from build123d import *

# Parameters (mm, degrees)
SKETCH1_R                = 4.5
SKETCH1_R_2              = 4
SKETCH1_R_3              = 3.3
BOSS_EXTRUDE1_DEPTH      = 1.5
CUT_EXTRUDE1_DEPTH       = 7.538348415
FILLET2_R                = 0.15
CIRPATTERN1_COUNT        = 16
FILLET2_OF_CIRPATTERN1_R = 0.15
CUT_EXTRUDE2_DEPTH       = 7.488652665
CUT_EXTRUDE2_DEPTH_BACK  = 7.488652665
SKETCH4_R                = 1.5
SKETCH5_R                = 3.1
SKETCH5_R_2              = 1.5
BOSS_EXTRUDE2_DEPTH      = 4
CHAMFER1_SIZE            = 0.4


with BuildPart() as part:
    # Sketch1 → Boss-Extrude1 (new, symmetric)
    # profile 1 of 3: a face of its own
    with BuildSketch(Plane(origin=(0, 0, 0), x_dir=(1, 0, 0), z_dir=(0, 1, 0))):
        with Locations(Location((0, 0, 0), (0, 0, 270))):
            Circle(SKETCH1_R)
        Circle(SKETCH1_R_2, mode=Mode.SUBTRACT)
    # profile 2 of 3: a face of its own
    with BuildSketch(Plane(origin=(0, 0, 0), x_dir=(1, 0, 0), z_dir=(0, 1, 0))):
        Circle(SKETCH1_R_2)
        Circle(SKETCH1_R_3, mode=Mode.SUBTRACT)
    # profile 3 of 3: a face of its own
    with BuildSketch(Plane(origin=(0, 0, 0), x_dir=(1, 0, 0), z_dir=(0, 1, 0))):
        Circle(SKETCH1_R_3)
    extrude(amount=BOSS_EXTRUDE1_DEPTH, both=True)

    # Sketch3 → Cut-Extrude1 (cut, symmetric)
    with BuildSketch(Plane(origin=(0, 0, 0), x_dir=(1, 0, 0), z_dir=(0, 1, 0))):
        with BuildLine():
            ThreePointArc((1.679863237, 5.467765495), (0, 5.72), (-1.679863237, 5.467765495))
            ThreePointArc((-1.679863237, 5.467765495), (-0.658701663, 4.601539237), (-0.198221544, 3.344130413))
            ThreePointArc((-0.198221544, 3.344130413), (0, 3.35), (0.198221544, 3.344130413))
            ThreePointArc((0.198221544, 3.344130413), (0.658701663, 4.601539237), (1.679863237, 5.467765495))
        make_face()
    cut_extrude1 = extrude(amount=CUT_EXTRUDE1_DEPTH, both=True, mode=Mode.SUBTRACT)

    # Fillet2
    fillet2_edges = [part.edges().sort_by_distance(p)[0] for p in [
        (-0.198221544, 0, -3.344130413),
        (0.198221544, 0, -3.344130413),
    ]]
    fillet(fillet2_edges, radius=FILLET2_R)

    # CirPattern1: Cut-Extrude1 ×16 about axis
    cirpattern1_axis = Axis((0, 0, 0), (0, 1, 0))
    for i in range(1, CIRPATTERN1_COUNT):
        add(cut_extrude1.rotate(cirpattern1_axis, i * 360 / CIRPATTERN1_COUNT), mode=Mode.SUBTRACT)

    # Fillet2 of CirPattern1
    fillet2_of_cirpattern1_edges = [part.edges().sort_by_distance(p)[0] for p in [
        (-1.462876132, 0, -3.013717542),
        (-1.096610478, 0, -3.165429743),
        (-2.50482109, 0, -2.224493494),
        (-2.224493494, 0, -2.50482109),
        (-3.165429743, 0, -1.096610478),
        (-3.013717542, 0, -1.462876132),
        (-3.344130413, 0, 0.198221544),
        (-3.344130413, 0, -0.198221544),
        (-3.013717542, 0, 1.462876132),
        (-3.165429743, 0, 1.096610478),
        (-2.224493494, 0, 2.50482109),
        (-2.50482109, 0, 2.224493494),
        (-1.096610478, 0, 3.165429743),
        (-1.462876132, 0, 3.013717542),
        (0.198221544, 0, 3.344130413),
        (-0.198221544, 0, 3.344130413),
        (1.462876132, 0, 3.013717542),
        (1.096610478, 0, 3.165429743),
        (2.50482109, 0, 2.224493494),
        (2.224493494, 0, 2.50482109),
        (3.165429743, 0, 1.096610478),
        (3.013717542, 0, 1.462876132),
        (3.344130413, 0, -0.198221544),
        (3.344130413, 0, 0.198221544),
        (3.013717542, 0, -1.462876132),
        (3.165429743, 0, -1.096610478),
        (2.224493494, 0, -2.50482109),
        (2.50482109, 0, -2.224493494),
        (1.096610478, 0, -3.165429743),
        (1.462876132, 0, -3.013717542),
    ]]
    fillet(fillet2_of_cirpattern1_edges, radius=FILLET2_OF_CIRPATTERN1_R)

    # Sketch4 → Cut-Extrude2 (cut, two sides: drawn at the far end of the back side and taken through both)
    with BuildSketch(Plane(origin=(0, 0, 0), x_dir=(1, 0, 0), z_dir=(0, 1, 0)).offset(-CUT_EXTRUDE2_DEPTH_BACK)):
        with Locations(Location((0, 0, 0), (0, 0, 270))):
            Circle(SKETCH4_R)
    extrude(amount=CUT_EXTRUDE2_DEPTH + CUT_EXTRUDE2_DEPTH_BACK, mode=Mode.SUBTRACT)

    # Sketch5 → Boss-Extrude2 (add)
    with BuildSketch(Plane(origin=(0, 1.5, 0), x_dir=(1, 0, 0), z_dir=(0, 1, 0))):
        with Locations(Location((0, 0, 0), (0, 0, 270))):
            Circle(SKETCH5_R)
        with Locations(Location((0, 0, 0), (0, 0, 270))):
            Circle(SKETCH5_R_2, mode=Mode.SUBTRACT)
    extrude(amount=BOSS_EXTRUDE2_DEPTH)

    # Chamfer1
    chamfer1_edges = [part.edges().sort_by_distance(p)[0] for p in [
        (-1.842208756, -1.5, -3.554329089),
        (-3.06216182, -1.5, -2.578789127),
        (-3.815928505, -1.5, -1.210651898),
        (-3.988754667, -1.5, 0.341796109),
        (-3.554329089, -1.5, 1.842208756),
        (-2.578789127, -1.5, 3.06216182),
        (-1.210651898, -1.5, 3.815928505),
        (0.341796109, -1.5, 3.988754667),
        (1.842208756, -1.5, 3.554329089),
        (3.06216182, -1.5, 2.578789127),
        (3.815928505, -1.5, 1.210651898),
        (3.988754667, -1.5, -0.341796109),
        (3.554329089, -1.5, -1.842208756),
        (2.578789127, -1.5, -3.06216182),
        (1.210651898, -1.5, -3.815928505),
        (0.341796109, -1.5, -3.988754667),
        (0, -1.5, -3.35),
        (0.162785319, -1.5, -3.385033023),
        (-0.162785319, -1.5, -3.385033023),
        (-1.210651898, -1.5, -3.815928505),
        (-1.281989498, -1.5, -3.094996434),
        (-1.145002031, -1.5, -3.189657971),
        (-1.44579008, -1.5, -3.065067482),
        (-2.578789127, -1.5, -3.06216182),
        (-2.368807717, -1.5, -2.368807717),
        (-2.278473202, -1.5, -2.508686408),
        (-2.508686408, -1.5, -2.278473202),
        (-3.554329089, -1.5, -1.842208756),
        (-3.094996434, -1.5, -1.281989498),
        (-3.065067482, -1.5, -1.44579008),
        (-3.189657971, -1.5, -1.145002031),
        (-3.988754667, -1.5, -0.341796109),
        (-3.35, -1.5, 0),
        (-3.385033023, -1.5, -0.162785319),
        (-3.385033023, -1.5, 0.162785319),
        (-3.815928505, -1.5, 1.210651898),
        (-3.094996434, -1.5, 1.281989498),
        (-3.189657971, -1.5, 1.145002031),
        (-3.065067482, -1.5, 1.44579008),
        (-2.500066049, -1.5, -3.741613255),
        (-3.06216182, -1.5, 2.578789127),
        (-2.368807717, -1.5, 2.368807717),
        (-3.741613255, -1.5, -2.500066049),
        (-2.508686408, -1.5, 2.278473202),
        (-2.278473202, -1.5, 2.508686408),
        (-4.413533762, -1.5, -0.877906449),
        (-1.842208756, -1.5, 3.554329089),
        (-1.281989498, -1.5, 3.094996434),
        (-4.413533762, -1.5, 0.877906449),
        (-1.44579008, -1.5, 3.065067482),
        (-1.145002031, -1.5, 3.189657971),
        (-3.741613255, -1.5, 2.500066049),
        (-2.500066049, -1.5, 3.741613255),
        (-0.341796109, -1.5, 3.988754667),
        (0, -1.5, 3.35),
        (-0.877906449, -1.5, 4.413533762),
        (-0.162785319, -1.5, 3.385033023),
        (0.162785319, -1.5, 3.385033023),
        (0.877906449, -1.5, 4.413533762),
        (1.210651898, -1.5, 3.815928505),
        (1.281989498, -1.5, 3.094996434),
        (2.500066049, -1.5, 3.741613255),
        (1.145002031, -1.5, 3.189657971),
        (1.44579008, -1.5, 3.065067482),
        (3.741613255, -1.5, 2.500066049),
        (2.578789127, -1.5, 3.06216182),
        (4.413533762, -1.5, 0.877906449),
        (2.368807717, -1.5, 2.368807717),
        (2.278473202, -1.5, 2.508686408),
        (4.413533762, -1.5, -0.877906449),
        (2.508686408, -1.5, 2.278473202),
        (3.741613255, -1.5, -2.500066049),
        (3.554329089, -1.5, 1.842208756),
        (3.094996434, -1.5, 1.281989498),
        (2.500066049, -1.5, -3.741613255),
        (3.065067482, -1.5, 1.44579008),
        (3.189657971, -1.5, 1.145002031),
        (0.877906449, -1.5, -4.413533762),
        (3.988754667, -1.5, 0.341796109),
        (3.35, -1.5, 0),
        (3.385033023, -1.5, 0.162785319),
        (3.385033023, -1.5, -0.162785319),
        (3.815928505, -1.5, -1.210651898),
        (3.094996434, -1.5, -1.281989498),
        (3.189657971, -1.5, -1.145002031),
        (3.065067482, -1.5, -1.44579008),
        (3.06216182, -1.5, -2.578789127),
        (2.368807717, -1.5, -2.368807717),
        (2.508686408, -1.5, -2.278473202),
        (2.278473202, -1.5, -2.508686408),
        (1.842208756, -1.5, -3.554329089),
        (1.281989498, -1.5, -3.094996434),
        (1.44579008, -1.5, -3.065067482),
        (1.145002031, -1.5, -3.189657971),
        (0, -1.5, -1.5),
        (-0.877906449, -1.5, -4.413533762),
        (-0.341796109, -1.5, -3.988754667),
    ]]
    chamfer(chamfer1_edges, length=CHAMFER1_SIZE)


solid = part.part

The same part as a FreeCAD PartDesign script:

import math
import FreeCAD as App
import Part
import Sketcher

V = App.Vector


def edges_at(feature, points):
    """Names of the edges that pass closest to the given points."""
    edges = feature.Shape.Edges
    near = lambda p: min(range(len(edges)), key=lambda i: edges[i].distToShape(Part.Vertex(*p))[0])
    return sorted({f"Edge{near(p) + 1}" for p in points})

doc = App.newDocument("Part")
body = doc.addObject("PartDesign::Body", "Body")

# Sketch on XZ plane
sketch1 = body.newObject("Sketcher::SketchObject", "Sketch")
sketch1.AttachmentSupport = (doc.getObject("XZ_Plane"), [""])
sketch1.MapMode = "FlatFace"
sketch1.addGeometry(Part.Circle(V(0, 0, 0), V(0, 0, 1), 4.5), False)
sketch1.addConstraint(Sketcher.Constraint("Coincident", 0, 3, -1, 1))
sketch1.addConstraint(Sketcher.Constraint("Diameter", 0, 9.0))
pad1 = body.newObject("PartDesign::Pad", "Pad")
pad1.Profile = sketch1
pad1.Length = 3
pad1.Midplane = True

# Sketch on XZ plane
sketch2 = body.newObject("Sketcher::SketchObject", "Sketch001")
sketch2.AttachmentSupport = (doc.getObject("XZ_Plane"), [""])
sketch2.MapMode = "FlatFace"
sketch2.addGeometry(Part.ArcOfCircle(Part.Circle(V(0, 0, 0), V(0, 0, 1), 5.72), math.radians(-107.078544), math.radians(-72.921456)), False)
sketch2.addGeometry(Part.ArcOfCircle(Part.Circle(V(-2.80974, -3.100778, 0), V(0, 0, 1), 2.622832), math.radians(-64.482609), math.radians(-5.323682)), False)
sketch2.addGeometry(Part.ArcOfCircle(Part.Circle(V(0, 0, 0), V(0, 0, 1), 3.35), math.radians(-93.392208), math.radians(-86.607792)), False)
sketch2.addGeometry(Part.ArcOfCircle(Part.Circle(V(2.80974, -3.100778, 0), V(0, 0, 1), 2.622832), math.radians(-174.676318), math.radians(-115.517391)), False)
sketch2.addConstraint(Sketcher.Constraint("Coincident", 0, 1, 1, 1))
sketch2.addConstraint(Sketcher.Constraint("Coincident", 1, 2, 2, 1))
sketch2.addConstraint(Sketcher.Constraint("Coincident", 2, 2, 3, 1))
sketch2.addConstraint(Sketcher.Constraint("Coincident", 3, 2, 0, 2))
sketch2.addConstraint(Sketcher.Constraint("Coincident", 0, 3, -1, 1))
sketch2.addConstraint(Sketcher.Constraint("Coincident", 2, 3, -1, 1))
sketch2.addConstraint(Sketcher.Constraint("Equal", 1, 3))
sketch2.addConstraint(Sketcher.Constraint("Symmetric", 1, 3, 3, 3, -2))
sketch2.addConstraint(Sketcher.Constraint("Radius", 0, 5.72))
sketch2.addConstraint(Sketcher.Constraint("Radius", 2, 3.35))
sketch2.addConstraint(Sketcher.Constraint("Radius", 1, 2.622832))
sketch2.addConstraint(Sketcher.Constraint("DistanceX", 1, 3, -1, 1, 2.80974))
sketch2.addConstraint(Sketcher.Constraint("DistanceY", 1, 3, -1, 1, 3.100778))
pocket1 = body.newObject("PartDesign::Pocket", "Pocket")
pocket1.Profile = sketch2
pocket1.Length = 15.076697
pocket1.Midplane = True
doc.recompute()

fillet = body.newObject("PartDesign::Fillet", "Fillet")
fillet.Base = (pocket1, edges_at(pocket1, [(-0.198, 0, -3.344), (0.198, 0, -3.344)]))
fillet.Radius = 0.15
doc.recompute()

polarpattern = body.newObject("PartDesign::PolarPattern", "PolarPattern")
polarpattern.Originals = [pocket1]
polarpattern.Axis = (doc.getObject("Y_Axis"), [""])
polarpattern.Angle = 360
polarpattern.Occurrences = 16
body.Tip = polarpattern
doc.recompute()

fillet2 = body.newObject("PartDesign::Fillet", "Fillet001")
fillet2.Base = (polarpattern, edges_at(polarpattern, [
    (-1.463, 0, -3.014),
    (-1.097, 0, -3.165),
    (-2.505, 0, -2.224),
    (-2.224, 0, -2.505),
    (-3.165, 0, -1.097),
    (-3.014, 0, -1.463),
    (-3.344, 0, 0.198),
    (-3.344, 0, -0.198),
    (-3.014, 0, 1.463),
    (-3.165, 0, 1.097),
    (-2.224, 0, 2.505),
    (-2.505, 0, 2.224),
    (-1.097, 0, 3.165),
    (-1.463, 0, 3.014),
    (0.198, 0, 3.344),
    (-0.198, 0, 3.344),
    (1.463, 0, 3.014),
    (1.097, 0, 3.165),
    (2.505, 0, 2.224),
    (2.224, 0, 2.505),
    (3.165, 0, 1.097),
    (3.014, 0, 1.463),
    (3.344, 0, -0.198),
    (3.344, 0, 0.198),
    (3.014, 0, -1.463),
    (3.165, 0, -1.097),
    (2.224, 0, -2.505),
    (2.505, 0, -2.224),
    (1.097, 0, -3.165),
    (1.463, 0, -3.014),
]))
fillet2.Radius = 0.15

# Sketch on XZ plane
sketch3 = body.newObject("Sketcher::SketchObject", "Sketch002")
sketch3.AttachmentSupport = (doc.getObject("XZ_Plane"), [""])
sketch3.MapMode = "FlatFace"
sketch3.addGeometry(Part.Circle(V(0, 0, 0), V(0, 0, 1), 1.5), False)
sketch3.addConstraint(Sketcher.Constraint("Coincident", 0, 3, -1, 1))
sketch3.addConstraint(Sketcher.Constraint("Diameter", 0, 3.0))
pocket2 = body.newObject("PartDesign::Pocket", "Pocket001")
pocket2.Profile = sketch3
pocket2.Type = "ThroughAll"
pocket2.Midplane = True

# Sketch on XZ plane
sketch4 = body.newObject("Sketcher::SketchObject", "Sketch003")
sketch4.AttachmentSupport = (doc.getObject("XZ_Plane"), [""])
sketch4.MapMode = "FlatFace"
sketch4.AttachmentOffset = App.Placement(V(0, 0, -1.5), App.Rotation())
sketch4.addGeometry(Part.Circle(V(0, 0, 0), V(0, 0, 1), 3.1), False)
sketch4.addGeometry(Part.Circle(V(0, 0, 0), V(0, 0, 1), 1.5), False)
sketch4.addConstraint(Sketcher.Constraint("Coincident", 0, 3, -1, 1))
sketch4.addConstraint(Sketcher.Constraint("Coincident", 1, 3, -1, 1))
sketch4.addConstraint(Sketcher.Constraint("Diameter", 1, 3.0))
sketch4.addConstraint(Sketcher.Constraint("Diameter", 0, 6.2))
pad2 = body.newObject("PartDesign::Pad", "Pad001")
pad2.Profile = sketch4
pad2.Length = 4
pad2.Reversed = True
doc.recompute()

chamfer = body.newObject("PartDesign::Chamfer", "Chamfer")
chamfer.Base = (pad2, edges_at(pad2, [
    (-1.842, -1.5, -3.554),
    (-3.062, -1.5, -2.579),
    (-3.816, -1.5, -1.211),
    (-3.989, -1.5, 0.342),
    (-3.554, -1.5, 1.842),
    (-2.579, -1.5, 3.062),
    (-1.211, -1.5, 3.816),
    (0.342, -1.5, 3.989),
    (1.842, -1.5, 3.554),
    (3.062, -1.5, 2.579),
    (3.816, -1.5, 1.211),
    (3.989, -1.5, -0.342),
    (3.554, -1.5, -1.842),
    (2.579, -1.5, -3.062),
    (1.211, -1.5, -3.816),
    (0.342, -1.5, -3.989),
    (0, -1.5, -3.35),
    (0.163, -1.5, -3.385),
    (-0.163, -1.5, -3.385),
    (-1.211, -1.5, -3.816),
    (-1.282, -1.5, -3.095),
    (-1.145, -1.5, -3.19),
    (-1.446, -1.5, -3.065),
    (-2.579, -1.5, -3.062),
    (-2.369, -1.5, -2.369),
    (-2.278, -1.5, -2.509),
    (-2.509, -1.5, -2.278),
    (-3.554, -1.5, -1.842),
    (-3.095, -1.5, -1.282),
    (-3.065, -1.5, -1.446),
    (-3.19, -1.5, -1.145),
    (-3.989, -1.5, -0.342),
    (-3.35, -1.5, 0),
    (-3.385, -1.5, -0.163),
    (-3.385, -1.5, 0.163),
    (-3.816, -1.5, 1.211),
    (-3.095, -1.5, 1.282),
    (-3.19, -1.5, 1.145),
    (-3.065, -1.5, 1.446),
    (-2.5, -1.5, -3.742),
    (-3.062, -1.5, 2.579),
    (-2.369, -1.5, 2.369),
    (-3.742, -1.5, -2.5),
    (-2.509, -1.5, 2.278),
    (-2.278, -1.5, 2.509),
    (-4.414, -1.5, -0.878),
    (-1.842, -1.5, 3.554),
    (-1.282, -1.5, 3.095),
    (-4.414, -1.5, 0.878),
    (-1.446, -1.5, 3.065),
    (-1.145, -1.5, 3.19),
    (-3.742, -1.5, 2.5),
    (-2.5, -1.5, 3.742),
    (-0.342, -1.5, 3.989),
    (0, -1.5, 3.35),
    (-0.878, -1.5, 4.414),
    (-0.163, -1.5, 3.385),
    (0.163, -1.5, 3.385),
    (0.878, -1.5, 4.414),
    (1.211, -1.5, 3.816),
    (1.282, -1.5, 3.095),
    (2.5, -1.5, 3.742),
    (1.145, -1.5, 3.19),
    (1.446, -1.5, 3.065),
    (3.742, -1.5, 2.5),
    (2.579, -1.5, 3.062),
    (4.414, -1.5, 0.878),
    (2.369, -1.5, 2.369),
    (2.278, -1.5, 2.509),
    (4.414, -1.5, -0.878),
    (2.509, -1.5, 2.278),
    (3.742, -1.5, -2.5),
    (3.554, -1.5, 1.842),
    (3.095, -1.5, 1.282),
    (2.5, -1.5, -3.742),
    (3.065, -1.5, 1.446),
    (3.19, -1.5, 1.145),
    (0.878, -1.5, -4.414),
    (3.989, -1.5, 0.342),
    (3.35, -1.5, 0),
    (3.385, -1.5, 0.163),
    (3.385, -1.5, -0.163),
    (3.816, -1.5, -1.211),
    (3.095, -1.5, -1.282),
    (3.19, -1.5, -1.145),
    (3.065, -1.5, -1.446),
    (3.062, -1.5, -2.579),
    (2.369, -1.5, -2.369),
    (2.509, -1.5, -2.278),
    (2.278, -1.5, -2.509),
    (1.842, -1.5, -3.554),
    (1.282, -1.5, -3.095),
    (1.446, -1.5, -3.065),
    (1.145, -1.5, -3.19),
    (0, -1.5, -1.5),
    (-0.878, -1.5, -4.414),
    (-0.342, -1.5, -3.989),
]))
chamfer.Size = 0.4

doc.recompute()
